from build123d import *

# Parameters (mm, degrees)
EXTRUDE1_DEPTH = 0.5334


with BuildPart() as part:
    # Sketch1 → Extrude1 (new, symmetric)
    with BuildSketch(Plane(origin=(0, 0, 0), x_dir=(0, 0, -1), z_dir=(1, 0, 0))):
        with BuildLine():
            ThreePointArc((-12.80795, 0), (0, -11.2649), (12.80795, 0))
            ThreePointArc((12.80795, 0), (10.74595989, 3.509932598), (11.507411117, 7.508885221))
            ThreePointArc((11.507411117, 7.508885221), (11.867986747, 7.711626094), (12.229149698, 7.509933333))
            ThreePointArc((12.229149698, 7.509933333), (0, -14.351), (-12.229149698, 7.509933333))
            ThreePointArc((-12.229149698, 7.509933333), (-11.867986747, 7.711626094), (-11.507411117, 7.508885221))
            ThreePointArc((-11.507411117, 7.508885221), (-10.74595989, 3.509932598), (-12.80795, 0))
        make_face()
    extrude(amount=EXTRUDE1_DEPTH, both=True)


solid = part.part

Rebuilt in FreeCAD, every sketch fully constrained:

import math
import FreeCAD as App
import Part
import Sketcher

V = App.Vector
Q = App.Units.Quantity

doc = App.newDocument("Part")
body = doc.addObject("PartDesign::Body", "Body")

# Sketch on YZ plane
sketch1 = body.newObject("Sketcher::SketchObject", "Sketch")
sketch1.AttachmentSupport = (doc.getObject("YZ_Plane"), [""])
sketch1.MapMode = "FlatFace"
sketch1.addGeometry([
    Part.ArcOfCircle(Part.Circle(V(1.65, 0, 0), V(0, 0, 1), 12.91), math.radians(97), math.radians(263)),  # 0
    Part.ArcOfCircle(Part.Circle(V(4.5, 16.44, 0), V(0, 0, 1), 5.78), math.radians(-141), math.radians(-59)),  # 1
    Part.ArcOfCircle(Part.Circle(V(7.29, 11.87, 0), V(0, 0, 1), 0.42), math.radians(-59), math.radians(58)),  # 2
    Part.ArcOfCircle(Part.Circle(V(0, 0, 0), V(0, 0, 1), 14.35), math.radians(58), math.radians(302)),  # 3
    Part.ArcOfCircle(Part.Circle(V(7.29, -11.87, 0), V(0, 0, 1), 0.42), math.radians(-58), math.radians(59)),  # 4
    Part.ArcOfCircle(Part.Circle(V(4.5, -16.44, 0), V(0, 0, 1), 5.78), math.radians(59), math.radians(141)),  # 5
], False)
sketch1.addConstraint([
    Sketcher.Constraint("Coincident", 0, 1, 1, 1),
    Sketcher.Constraint("Tangent", 1, 2, 2, 1),
    Sketcher.Constraint("Tangent", 2, 2, 3, 1),
    Sketcher.Constraint("Tangent", 3, 2, 4, 1),
    Sketcher.Constraint("Tangent", 4, 2, 5, 1),
    Sketcher.Constraint("Coincident", 5, 2, 0, 2),
    Sketcher.Constraint("Coincident", 3, 3, -1, 1),
    Sketcher.Constraint("Equal", 2, 4),
    Sketcher.Constraint("Equal", 1, 5),
    Sketcher.Constraint("Symmetric", 0, 1, 5, 2, -1, 1),
    Sketcher.Constraint("Symmetric", 1, 3, 5, 3, -1),
    Sketcher.Constraint("Radius", 3, Q("0.565 in")),
    Sketcher.Constraint("Radius", 1, Q("5.78313 mm")),
    Sketcher.Constraint("Radius", 0, Q("12.913632 mm")),
    Sketcher.Constraint("Radius", 2, Q("0.423106 mm")),
    Sketcher.Constraint("DistanceY", -1, 1, 2, 3, Q("11.868601 mm")),
    Sketcher.Constraint("DistanceY", 2, 2, 0, 1, Q("0.5788 mm")),
])
pad1 = body.newObject("PartDesign::Pad", "Pad")
pad1.Profile = sketch1
pad1.Length = Q("0.042 in")
pad1.Midplane = True

doc.recompute()
